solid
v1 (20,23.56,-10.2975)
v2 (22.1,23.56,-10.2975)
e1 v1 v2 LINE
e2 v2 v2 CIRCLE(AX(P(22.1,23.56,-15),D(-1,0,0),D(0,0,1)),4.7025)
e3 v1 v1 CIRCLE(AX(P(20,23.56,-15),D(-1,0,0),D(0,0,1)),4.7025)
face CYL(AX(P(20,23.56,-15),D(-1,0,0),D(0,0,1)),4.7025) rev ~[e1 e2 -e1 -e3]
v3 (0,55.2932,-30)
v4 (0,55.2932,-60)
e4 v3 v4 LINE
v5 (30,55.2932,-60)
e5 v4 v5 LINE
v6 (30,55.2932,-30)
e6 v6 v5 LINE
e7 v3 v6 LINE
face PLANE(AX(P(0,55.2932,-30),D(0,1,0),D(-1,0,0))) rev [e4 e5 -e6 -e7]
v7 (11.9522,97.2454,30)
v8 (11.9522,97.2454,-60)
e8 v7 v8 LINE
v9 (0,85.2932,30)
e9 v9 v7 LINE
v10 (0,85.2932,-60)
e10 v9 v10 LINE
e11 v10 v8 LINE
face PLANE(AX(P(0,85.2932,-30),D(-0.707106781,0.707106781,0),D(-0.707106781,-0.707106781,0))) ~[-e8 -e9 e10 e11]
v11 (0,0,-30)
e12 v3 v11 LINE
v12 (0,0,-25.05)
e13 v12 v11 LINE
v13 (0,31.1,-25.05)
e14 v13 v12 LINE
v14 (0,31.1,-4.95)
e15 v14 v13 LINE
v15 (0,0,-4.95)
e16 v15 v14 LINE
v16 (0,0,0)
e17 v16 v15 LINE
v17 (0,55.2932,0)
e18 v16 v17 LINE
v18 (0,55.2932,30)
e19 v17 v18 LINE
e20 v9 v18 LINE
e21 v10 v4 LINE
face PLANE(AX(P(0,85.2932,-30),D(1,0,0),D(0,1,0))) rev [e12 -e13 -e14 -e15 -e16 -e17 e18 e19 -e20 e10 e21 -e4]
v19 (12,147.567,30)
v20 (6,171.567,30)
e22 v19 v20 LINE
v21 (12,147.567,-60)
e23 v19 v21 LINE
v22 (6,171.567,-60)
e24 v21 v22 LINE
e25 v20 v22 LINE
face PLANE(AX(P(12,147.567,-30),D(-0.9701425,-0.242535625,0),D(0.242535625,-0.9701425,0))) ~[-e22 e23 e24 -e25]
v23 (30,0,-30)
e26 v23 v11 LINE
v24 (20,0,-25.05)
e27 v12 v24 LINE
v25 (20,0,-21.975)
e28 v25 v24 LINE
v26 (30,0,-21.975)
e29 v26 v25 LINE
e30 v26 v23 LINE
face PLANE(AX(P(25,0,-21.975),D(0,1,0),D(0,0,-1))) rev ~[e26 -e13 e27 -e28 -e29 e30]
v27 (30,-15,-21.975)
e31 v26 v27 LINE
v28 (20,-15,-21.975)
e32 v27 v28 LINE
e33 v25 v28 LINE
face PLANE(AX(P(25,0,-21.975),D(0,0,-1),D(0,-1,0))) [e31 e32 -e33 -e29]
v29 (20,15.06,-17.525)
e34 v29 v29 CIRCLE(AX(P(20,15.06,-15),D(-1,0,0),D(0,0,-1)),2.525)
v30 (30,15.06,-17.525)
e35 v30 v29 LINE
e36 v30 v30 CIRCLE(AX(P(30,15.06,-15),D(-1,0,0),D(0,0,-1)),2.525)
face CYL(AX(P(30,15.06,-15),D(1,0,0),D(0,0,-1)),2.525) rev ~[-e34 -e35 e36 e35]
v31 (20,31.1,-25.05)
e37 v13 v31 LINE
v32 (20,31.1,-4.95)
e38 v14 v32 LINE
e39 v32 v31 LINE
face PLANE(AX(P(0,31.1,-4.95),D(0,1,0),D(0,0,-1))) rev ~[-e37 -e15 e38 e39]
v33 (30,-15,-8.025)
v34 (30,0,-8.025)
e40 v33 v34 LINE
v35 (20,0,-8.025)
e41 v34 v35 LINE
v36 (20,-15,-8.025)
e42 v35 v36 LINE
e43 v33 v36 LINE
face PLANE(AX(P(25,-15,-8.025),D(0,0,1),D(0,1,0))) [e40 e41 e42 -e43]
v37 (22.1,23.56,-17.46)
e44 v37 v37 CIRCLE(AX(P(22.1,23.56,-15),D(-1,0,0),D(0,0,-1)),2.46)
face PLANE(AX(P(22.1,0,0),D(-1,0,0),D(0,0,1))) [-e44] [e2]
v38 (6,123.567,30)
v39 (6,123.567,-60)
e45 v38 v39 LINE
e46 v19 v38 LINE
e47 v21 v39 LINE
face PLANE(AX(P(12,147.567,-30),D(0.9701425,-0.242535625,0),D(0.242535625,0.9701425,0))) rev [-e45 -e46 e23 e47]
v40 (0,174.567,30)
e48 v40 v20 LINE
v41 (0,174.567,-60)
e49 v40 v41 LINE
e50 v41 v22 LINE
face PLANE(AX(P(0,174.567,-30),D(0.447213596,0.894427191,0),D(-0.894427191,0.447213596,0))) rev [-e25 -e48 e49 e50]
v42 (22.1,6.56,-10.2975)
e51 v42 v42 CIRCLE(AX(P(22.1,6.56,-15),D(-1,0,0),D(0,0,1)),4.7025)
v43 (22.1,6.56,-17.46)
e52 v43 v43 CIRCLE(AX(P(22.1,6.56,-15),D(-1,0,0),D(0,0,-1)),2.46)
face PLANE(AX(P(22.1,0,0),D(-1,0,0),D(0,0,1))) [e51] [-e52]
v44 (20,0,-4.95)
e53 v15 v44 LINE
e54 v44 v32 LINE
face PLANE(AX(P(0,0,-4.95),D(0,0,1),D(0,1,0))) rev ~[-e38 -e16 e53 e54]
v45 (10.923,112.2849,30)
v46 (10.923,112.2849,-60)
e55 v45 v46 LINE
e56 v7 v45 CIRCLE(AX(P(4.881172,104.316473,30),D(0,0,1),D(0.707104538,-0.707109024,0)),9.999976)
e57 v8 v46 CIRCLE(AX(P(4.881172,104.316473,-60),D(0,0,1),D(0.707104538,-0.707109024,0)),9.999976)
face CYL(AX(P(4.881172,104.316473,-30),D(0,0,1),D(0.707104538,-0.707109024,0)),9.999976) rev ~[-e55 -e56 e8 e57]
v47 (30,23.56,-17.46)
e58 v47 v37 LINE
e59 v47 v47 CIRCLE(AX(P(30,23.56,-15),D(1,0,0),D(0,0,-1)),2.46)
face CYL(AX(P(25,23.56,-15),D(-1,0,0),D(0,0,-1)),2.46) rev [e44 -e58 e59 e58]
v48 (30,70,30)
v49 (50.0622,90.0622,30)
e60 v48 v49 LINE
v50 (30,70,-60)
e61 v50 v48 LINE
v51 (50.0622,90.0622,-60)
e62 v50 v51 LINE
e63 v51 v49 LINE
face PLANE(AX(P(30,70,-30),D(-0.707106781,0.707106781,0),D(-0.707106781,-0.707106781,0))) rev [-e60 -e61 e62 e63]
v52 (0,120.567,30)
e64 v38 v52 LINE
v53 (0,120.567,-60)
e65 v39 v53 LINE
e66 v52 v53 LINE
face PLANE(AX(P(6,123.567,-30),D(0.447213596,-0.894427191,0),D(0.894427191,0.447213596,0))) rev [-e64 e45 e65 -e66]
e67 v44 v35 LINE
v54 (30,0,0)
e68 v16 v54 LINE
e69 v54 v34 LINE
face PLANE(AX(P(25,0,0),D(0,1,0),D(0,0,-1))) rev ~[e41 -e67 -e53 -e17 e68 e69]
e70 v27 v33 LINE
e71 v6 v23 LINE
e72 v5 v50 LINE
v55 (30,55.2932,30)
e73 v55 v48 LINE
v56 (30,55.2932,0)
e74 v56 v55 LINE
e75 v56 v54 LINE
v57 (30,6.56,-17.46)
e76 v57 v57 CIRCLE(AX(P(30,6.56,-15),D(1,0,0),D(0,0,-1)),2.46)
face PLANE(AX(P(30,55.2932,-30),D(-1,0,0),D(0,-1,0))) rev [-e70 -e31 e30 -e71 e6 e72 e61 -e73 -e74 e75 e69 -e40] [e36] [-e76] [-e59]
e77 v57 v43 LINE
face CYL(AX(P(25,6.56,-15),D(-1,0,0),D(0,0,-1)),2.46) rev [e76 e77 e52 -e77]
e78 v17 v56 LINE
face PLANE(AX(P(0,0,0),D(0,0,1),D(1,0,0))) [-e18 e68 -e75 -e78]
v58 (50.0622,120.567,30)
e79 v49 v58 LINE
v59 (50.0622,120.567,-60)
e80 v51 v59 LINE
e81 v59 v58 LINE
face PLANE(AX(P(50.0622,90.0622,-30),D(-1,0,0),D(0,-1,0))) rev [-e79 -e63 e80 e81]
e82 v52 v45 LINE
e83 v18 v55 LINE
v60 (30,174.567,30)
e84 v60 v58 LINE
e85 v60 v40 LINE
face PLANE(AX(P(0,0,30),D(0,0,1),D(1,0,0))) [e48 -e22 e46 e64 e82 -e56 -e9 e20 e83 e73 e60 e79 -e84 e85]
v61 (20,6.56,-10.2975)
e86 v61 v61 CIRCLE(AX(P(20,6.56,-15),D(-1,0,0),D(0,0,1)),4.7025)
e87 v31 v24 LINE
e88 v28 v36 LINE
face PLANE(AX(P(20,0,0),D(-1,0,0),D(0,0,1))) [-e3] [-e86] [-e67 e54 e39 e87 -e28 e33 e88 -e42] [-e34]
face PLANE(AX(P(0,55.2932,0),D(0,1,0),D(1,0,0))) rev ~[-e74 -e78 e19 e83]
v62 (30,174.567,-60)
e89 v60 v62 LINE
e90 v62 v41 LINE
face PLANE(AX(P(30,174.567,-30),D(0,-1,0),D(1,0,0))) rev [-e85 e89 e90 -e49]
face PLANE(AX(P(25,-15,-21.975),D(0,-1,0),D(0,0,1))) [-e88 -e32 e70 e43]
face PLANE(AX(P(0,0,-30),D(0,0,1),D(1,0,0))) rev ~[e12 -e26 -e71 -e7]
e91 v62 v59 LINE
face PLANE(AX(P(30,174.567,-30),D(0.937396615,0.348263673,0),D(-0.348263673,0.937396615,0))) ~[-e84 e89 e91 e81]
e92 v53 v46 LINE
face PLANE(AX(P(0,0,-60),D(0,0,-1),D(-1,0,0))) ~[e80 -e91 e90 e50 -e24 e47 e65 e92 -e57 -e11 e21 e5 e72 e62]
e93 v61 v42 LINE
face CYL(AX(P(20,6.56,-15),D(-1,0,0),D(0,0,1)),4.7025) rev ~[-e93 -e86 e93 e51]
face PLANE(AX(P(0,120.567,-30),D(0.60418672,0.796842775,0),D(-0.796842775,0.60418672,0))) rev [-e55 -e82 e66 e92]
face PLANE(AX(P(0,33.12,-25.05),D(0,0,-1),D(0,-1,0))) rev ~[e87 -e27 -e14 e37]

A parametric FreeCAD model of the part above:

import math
import FreeCAD as App
import Part
import Sketcher

V = App.Vector
Q = App.Units.Quantity


def add_polygon(sketch, points):
    """Adds a closed chain of lines whose ends are joined by coincident constraints."""
    first, n = sketch.GeometryCount, len(points)
    for a, b in zip(points, points[1:] + points[:1]):
        sketch.addGeometry(Part.LineSegment(App.Vector(*a, 0), App.Vector(*b, 0)), False)
    for i in range(n):
        sketch.addConstraint(Sketcher.Constraint("Coincident", first + i, 2, first + (i + 1) % n, 1))

doc = App.newDocument("Part")
params = doc.addObject("Spreadsheet::Sheet", "Params")
for row, (alias, value) in enumerate([
    ("sketch1_width", "25 mm"),
    ("sketch1_height", "40 mm"),
    ("pad1_length", "30 mm"),
    ("sketch2_diameter", "4.92 mm"),
    ("pocket1_length", "30 mm"),
    ("sketch3_height", "20.1 mm"),
    ("sketch3_width", "33.12 mm"),
    ("pocket2_length", "20 mm"),
    ("sketch4_height", "13.95 mm"),
    ("sketch4_width", "5 mm"),
    ("pad2_length", "15 mm"),
    ("sketch5_diameter", "4.92 mm"),
    ("pocket3_length", "2.1 mm"),
    ("sketch6_diameter", "4.92 mm"),
    ("pocket4_length", "10 mm"),
    ("sketch7_diameter", "4.92 mm"),
    ("pocket5_length", "2.1 mm"),
    ("sketch8_diameter", "4.92 mm"),
    ("sketch8_width", "40 mm"),
    ("sketch8_width2", "15 mm"),
    ("sketch8_height", "30 mm"),
    ("sketch8_height2", "13.95 mm"),
    ("pad3_length", "5 mm"),
    ("sketch9_width", "30 mm"),
    ("pad4_length", "30 mm"),
    ("sketch10_diameter", "5.05 mm"),
    ("pocket6_length", "30 mm"),
    ("sketch11_width", "2.02 mm"),
    ("sketch11_height", "20.1 mm"),
    ("pad5_length", "20 mm"),
    ("sketch12_radius", "10 mm"),
    ("sketch12_width", "30 mm"),
    ("pad6_length", "30 mm"),
    ("sketch13_width", "30 mm"),
    ("sketch13_radius", "10 mm"),
    ("pad7_length", "30 mm"),
], start=1):
    params.set(f"A{row}", alias)
    params.set(f"B{row}", "=" + value)
    params.setAlias(f"B{row}", alias)

body = doc.addObject("PartDesign::Body", "Body")

sketch1 = body.newObject("Sketcher::SketchObject", "Sketch")
sketch1.AttachmentSupport = (doc.getObject("XY_Plane"), [""])
sketch1.MapMode = "FlatFace"
add_polygon(sketch1, [(0, 40), (0, 0), (25, 0), (25, 40)])
sketch1.addConstraint(Sketcher.Constraint("Vertical", 0))
sketch1.addConstraint(Sketcher.Constraint("Horizontal", 1))
sketch1.addConstraint(Sketcher.Constraint("Vertical", 2))
sketch1.addConstraint(Sketcher.Constraint("Horizontal", 3))
sketch1.addConstraint(Sketcher.Constraint("Coincident", 0, 2, -1, 1))
sketch1.addConstraint(Sketcher.Constraint("DistanceX", 1, 1, 1, 2, Q("25 mm")))
sketch1.addConstraint(Sketcher.Constraint("DistanceY", 0, 2, 0, 1, Q("40 mm")))
sketch1.setExpression("Constraints[9]", "Params.sketch1_width")
sketch1.setExpression("Constraints[10]", "Params.sketch1_height")
pad1 = body.newObject("PartDesign::Pad", "Pad")
pad1.Profile = sketch1
pad1.setExpression("Length", "Params.pad1_length")
pad1.Reversed = True

sketch2 = body.newObject("Sketcher::SketchObject", "Sketch001")
sketch2.AttachmentSupport = (doc.getObject("YZ_Plane"), [""])
sketch2.MapMode = "FlatFace"
sketch2.AttachmentOffset = App.Placement(V(0, 0, 25), App.Rotation())
sketch2.addGeometry(Part.Circle(V(6.6, -15, 0), V(0, 0, 1), 2.5), False)
sketch2.addConstraint(Sketcher.Constraint("Diameter", 0, Q("4.92 mm")))
sketch2.addConstraint(Sketcher.Constraint("DistanceY", 0, 3, -1, 1, Q("15 mm")))
sketch2.addConstraint(Sketcher.Constraint("DistanceX", -1, 1, 0, 3, Q("6.56 mm")))
sketch2.setExpression("Constraints[0]", "Params.sketch2_diameter")
pocket1 = body.newObject("PartDesign::Pocket", "Pocket")
pocket1.Profile = sketch2
pocket1.setExpression("Length", "Params.pocket1_length")

sketch3 = body.newObject("Sketcher::SketchObject", "Sketch002")
sketch3.AttachmentSupport = (doc.getObject("YZ_Plane"), [""])
sketch3.MapMode = "FlatFace"
add_polygon(sketch3, [(0, -25), (0, -5), (33, -5), (33, -25)])
sketch3.addConstraint(Sketcher.Constraint("Vertical", 0))
sketch3.addConstraint(Sketcher.Constraint("Horizontal", 1))
sketch3.addConstraint(Sketcher.Constraint("Vertical", 2))
sketch3.addConstraint(Sketcher.Constraint("Horizontal", 3))
sketch3.addConstraint(Sketcher.Constraint("PointOnObject", 0, 2, -2))
sketch3.addConstraint(Sketcher.Constraint("DistanceY", 0, 1, 0, 2, Q("20.1 mm")))
sketch3.addConstraint(Sketcher.Constraint("DistanceX", 1, 1, 1, 2, Q("33.12 mm")))
sketch3.addConstraint(Sketcher.Constraint("DistanceY", 0, 2, -1, 1, Q("4.95 mm")))
sketch3.setExpression("Constraints[9]", "Params.sketch3_height")
sketch3.setExpression("Constraints[10]", "Params.sketch3_width")
pocket2 = body.newObject("PartDesign::Pocket", "Pocket001")
pocket2.Profile = sketch3
pocket2.setExpression("Length", "Params.pocket2_length")
pocket2.Reversed = True

sketch4 = body.newObject("Sketcher::SketchObject", "Sketch003")
sketch4.AttachmentSupport = (doc.getObject("XZ_Plane"), [""])
sketch4.MapMode = "FlatFace"
add_polygon(sketch4, [(25, -8), (20, -8), (20, -22), (25, -22)])
sketch4.addConstraint(Sketcher.Constraint("Horizontal", 0))
sketch4.addConstraint(Sketcher.Constraint("Vertical", 1))
sketch4.addConstraint(Sketcher.Constraint("Horizontal", 2))
sketch4.addConstraint(Sketcher.Constraint("Vertical", 3))
sketch4.addConstraint(Sketcher.Constraint("DistanceY", 1, 2, 1, 1, Q("13.95 mm")))
sketch4.addConstraint(Sketcher.Constraint("DistanceX", 0, 2, 0, 1, Q("5 mm")))
sketch4.addConstraint(Sketcher.Constraint("DistanceX", -1, 1, 0, 2, Q("20 mm")))
sketch4.addConstraint(Sketcher.Constraint("DistanceY", 0, 2, -1, 1, Q("8.025 mm")))
sketch4.setExpression("Constraints[8]", "Params.sketch4_height")
sketch4.setExpression("Constraints[9]", "Params.sketch4_width")
pad2 = body.newObject("PartDesign::Pad", "Pad001")
pad2.Profile = sketch4
pad2.setExpression("Length", "Params.pad2_length")

sketch5 = body.newObject("Sketcher::SketchObject", "Sketch004")
sketch5.AttachmentSupport = (doc.getObject("YZ_Plane"), [""])
sketch5.MapMode = "FlatFace"
sketch5.AttachmentOffset = App.Placement(V(0, 0, 20), App.Rotation())
sketch5.addGeometry(Part.Circle(V(6.6, -15, 0), V(0, 0, 1), 4.7), False)
sketch5.addGeometry(Part.Circle(V(6.6, -15, 0), V(0, 0, 1), 2.5), False)
sketch5.addConstraint(Sketcher.Constraint("Coincident", 1, 3, 0, 3))
sketch5.addConstraint(Sketcher.Constraint("Diameter", 0, Q("9.405 mm")))
sketch5.addConstraint(Sketcher.Constraint("Diameter", 1, Q("4.92 mm")))
sketch5.addConstraint(Sketcher.Constraint("DistanceY", 0, 3, -1, 1, Q("15 mm")))
sketch5.addConstraint(Sketcher.Constraint("DistanceX", -1, 1, 0, 3, Q("6.56 mm")))
sketch5.setExpression("Constraints[2]", "Params.sketch5_diameter")
pocket3 = body.newObject("PartDesign::Pocket", "Pocket002")
pocket3.Profile = sketch5
pocket3.setExpression("Length", "Params.pocket3_length")
pocket3.Reversed = True

sketch6 = body.newObject("Sketcher::SketchObject", "Sketch005")
sketch6.AttachmentSupport = (doc.getObject("YZ_Plane"), [""])
sketch6.MapMode = "FlatFace"
sketch6.AttachmentOffset = App.Placement(V(0, 0, 25), App.Rotation())
sketch6.addGeometry(Part.Circle(V(23.6, -15, 0), V(0, 0, 1), 2.5), False)
sketch6.addConstraint(Sketcher.Constraint("Diameter", 0, Q("4.92 mm")))
sketch6.addConstraint(Sketcher.Constraint("DistanceY", 0, 3, -1, 1, Q("15 mm")))
sketch6.addConstraint(Sketcher.Constraint("DistanceX", -1, 1, 0, 3, Q("23.56 mm")))
sketch6.setExpression("Constraints[0]", "Params.sketch6_diameter")
pocket4 = body.newObject("PartDesign::Pocket", "Pocket003")
pocket4.Profile = sketch6
pocket4.setExpression("Length", "Params.pocket4_length")

sketch7 = body.newObject("Sketcher::SketchObject", "Sketch006")
sketch7.AttachmentSupport = (doc.getObject("YZ_Plane"), [""])
sketch7.MapMode = "FlatFace"
sketch7.AttachmentOffset = App.Placement(V(0, 0, 20), App.Rotation())
sketch7.addGeometry(Part.Circle(V(23.6, -15, 0), V(0, 0, 1), 4.7), False)
sketch7.addGeometry(Part.Circle(V(23.6, -15, 0), V(0, 0, 1), 2.5), False)
sketch7.addConstraint(Sketcher.Constraint("Coincident", 1, 3, 0, 3))
sketch7.addConstraint(Sketcher.Constraint("Diameter", 0, Q("9.405 mm")))
sketch7.addConstraint(Sketcher.Constraint("Diameter", 1, Q("4.92 mm")))
sketch7.addConstraint(Sketcher.Constraint("DistanceY", 0, 3, -1, 1, Q("15 mm")))
sketch7.addConstraint(Sketcher.Constraint("DistanceX", -1, 1, 0, 3, Q("23.56 mm")))
sketch7.setExpression("Constraints[2]", "Params.sketch7_diameter")
pocket5 = body.newObject("PartDesign::Pocket", "Pocket004")
pocket5.Profile = sketch7
pocket5.setExpression("Length", "Params.pocket5_length")
pocket5.Reversed = True

sketch8 = body.newObject("Sketcher::SketchObject", "Sketch007")
sketch8.AttachmentSupport = (doc.getObject("YZ_Plane"), [""])
sketch8.MapMode = "FlatFace"
sketch8.AttachmentOffset = App.Placement(V(0, 0, 25), App.Rotation())
add_polygon(sketch8, [(0, -30), (40, -30), (40, 0), (0, 0), (0, -8), (-15, -8), (-15, -22), (0, -22)])
sketch8.addGeometry(Part.Circle(V(6.6, -15, 0), V(0, 0, 1), 2.5), False)
sketch8.addGeometry(Part.Circle(V(23.6, -15, 0), V(0, 0, 1), 2.5), False)
sketch8.addConstraint(Sketcher.Constraint("Horizontal", 0))
sketch8.addConstraint(Sketcher.Constraint("Vertical", 1))
sketch8.addConstraint(Sketcher.Constraint("Horizontal", 2))
sketch8.addConstraint(Sketcher.Constraint("Vertical", 3))
sketch8.addConstraint(Sketcher.Constraint("Horizontal", 4))
sketch8.addConstraint(Sketcher.Constraint("Vertical", 5))
sketch8.addConstraint(Sketcher.Constraint("Horizontal", 6))
sketch8.addConstraint(Sketcher.Constraint("Vertical", 7))
sketch8.addConstraint(Sketcher.Constraint("Coincident", 2, 2, -1, 1))
sketch8.addConstraint(Sketcher.Constraint("Equal", 8, 9))
sketch8.addConstraint(Sketcher.Constraint("PointOnObject", 6, 2, -2))
sketch8.addConstraint(Sketcher.Constraint("Horizontal", 8, 3, 9, 3))
sketch8.addConstraint(Sketcher.Constraint("Equal", 3, 7))
sketch8.addConstraint(Sketcher.Constraint("Diameter", 8, Q("4.92 mm")))
sketch8.addConstraint(Sketcher.Constraint("DistanceX", 0, 1, 0, 2, Q("40 mm")))
sketch8.addConstraint(Sketcher.Constraint("DistanceX", 4, 2, 4, 1, Q("15 mm")))
sketch8.addConstraint(Sketcher.Constraint("DistanceY", 1, 1, 1, 2, Q("30 mm")))
sketch8.addConstraint(Sketcher.Constraint("DistanceY", 8, 3, -1, 1, Q("15 mm")))
sketch8.addConstraint(Sketcher.Constraint("DistanceX", 8, 3, 9, 3, Q("17 mm")))
sketch8.addConstraint(Sketcher.Constraint("DistanceY", 5, 2, 5, 1, Q("13.95 mm")))
sketch8.addConstraint(Sketcher.Constraint("DistanceX", -1, 1, 8, 3, Q("6.56 mm")))
sketch8.setExpression("Constraints[21]", "Params.sketch8_diameter")
sketch8.setExpression("Constraints[22]", "Params.sketch8_width")
sketch8.setExpression("Constraints[23]", "Params.sketch8_width2")
sketch8.setExpression("Constraints[24]", "Params.sketch8_height")
sketch8.setExpression("Constraints[27]", "Params.sketch8_height2")
pad3 = body.newObject("PartDesign::Pad", "Pad002")
pad3.Profile = sketch8
pad3.setExpression("Length", "Params.pad3_length")

sketch9 = body.newObject("Sketcher::SketchObject", "Sketch008")
sketch9.AttachmentSupport = (doc.getObject("XZ_Plane"), [""])
sketch9.MapMode = "FlatFace"
sketch9.AttachmentOffset = App.Placement(V(0, 0, -40), App.Rotation())
add_polygon(sketch9, [(30, -30), (0, -30), (0, 0), (30, 0)])
sketch9.addConstraint(Sketcher.Constraint("Horizontal", 0))
sketch9.addConstraint(Sketcher.Constraint("Vertical", 1))
sketch9.addConstraint(Sketcher.Constraint("Horizontal", 2))
sketch9.addConstraint(Sketcher.Constraint("Vertical", 3))
sketch9.addConstraint(Sketcher.Constraint("Coincident", 1, 2, -1, 1))
sketch9.addConstraint(Sketcher.Constraint("Equal", 2, 1))
sketch9.addConstraint(Sketcher.Constraint("DistanceX", 0, 2, 0, 1, Q("30 mm")))
sketch9.setExpression("Constraints[10]", "Params.sketch9_width")
pad4 = body.newObject("PartDesign::Pad", "Pad003")
pad4.Profile = sketch9
pad4.setExpression("Length", "Params.pad4_length")
pad4.Reversed = True

sketch10 = body.newObject("Sketcher::SketchObject", "Sketch009")
sketch10.AttachmentSupport = (doc.getObject("YZ_Plane"), [""])
sketch10.MapMode = "FlatFace"
sketch10.AttachmentOffset = App.Placement(V(0, 0, 30), App.Rotation())
sketch10.addGeometry(Part.Circle(V(15.1, -15, 0), V(0, 0, 1), 2.5), False)
sketch10.addConstraint(Sketcher.Constraint("Diameter", 0, Q("5.05 mm")))
sketch10.addConstraint(Sketcher.Constraint("DistanceY", 0, 3, -1, 1, Q("15 mm")))
sketch10.addConstraint(Sketcher.Constraint("DistanceX", -1, 1, 0, 3, Q("15.06 mm")))
sketch10.setExpression("Constraints[0]", "Params.sketch10_diameter")
pocket6 = body.newObject("PartDesign::Pocket", "Pocket005")
pocket6.Profile = sketch10
pocket6.setExpression("Length", "Params.pocket6_length")

sketch11 = body.newObject("Sketcher::SketchObject", "Sketch010")
sketch11.AttachmentSupport = (doc.getObject("YZ_Plane"), [""])
sketch11.MapMode = "FlatFace"
add_polygon(sketch11, [(33.1, -5), (33.1, -25.1), (31.1, -25.1), (31.1, -5)])
sketch11.addConstraint(Sketcher.Constraint("Vertical", 0))
sketch11.addConstraint(Sketcher.Constraint("Horizontal", 1))
sketch11.addConstraint(Sketcher.Constraint("Vertical", 2))
sketch11.addConstraint(Sketcher.Constraint("Horizontal", 3))
sketch11.addConstraint(Sketcher.Constraint("DistanceX", 1, 2, 1, 1, Q("2.02 mm")))
sketch11.addConstraint(Sketcher.Constraint("DistanceY", 0, 2, 0, 1, Q("20.1 mm")))
sketch11.addConstraint(Sketcher.Constraint("DistanceX", -1, 1, 1, 2, Q("31.1 mm")))
sketch11.addConstraint(Sketcher.Constraint("DistanceY", 0, 2, -1, 1, Q("25.05 mm")))
sketch11.setExpression("Constraints[8]", "Params.sketch11_width")
sketch11.setExpression("Constraints[9]", "Params.sketch11_height")
pad5 = body.newObject("PartDesign::Pad", "Pad004")
pad5.Profile = sketch11
pad5.setExpression("Length", "Params.pad5_length")

sketch12 = body.newObject("Sketcher::SketchObject", "Sketch011")
sketch12.AttachmentSupport = (doc.getObject("XY_Plane"), [""])
sketch12.MapMode = "FlatFace"
sketch12.addGeometry(Part.LineSegment(V(0, 85, 0), V(0, 70, 0)), False)
sketch12.addGeometry(Part.LineSegment(V(0, 70, 0), V(30, 70, 0)), False)
sketch12.addGeometry(Part.LineSegment(V(30, 70, 0), V(50, 90, 0)), False)
sketch12.addGeometry(Part.LineSegment(V(50, 90, 0), V(50, 121, 0)), False)
sketch12.addGeometry(Part.LineSegment(V(50, 121, 0), V(30, 175, 0)), False)
sketch12.addGeometry(Part.LineSegment(V(30, 175, 0), V(0, 175, 0)), False)
sketch12.addGeometry(Part.LineSegment(V(0, 175, 0), V(6, 172, 0)), False)
sketch12.addGeometry(Part.LineSegment(V(6, 172, 0), V(12, 148, 0)), False)
sketch12.addGeometry(Part.LineSegment(V(12, 148, 0), V(6, 124, 0)), False)
sketch12.addGeometry(Part.LineSegment(V(6, 124, 0), V(0, 121, 0)), False)
sketch12.addGeometry(Part.LineSegment(V(0, 121, 0), V(11, 112, 0)), False)
sketch12.addGeometry(Part.ArcOfCircle(Part.Circle(V(5, 104, 0), V(0, 0, 1), 10), math.radians(-45), math.radians(53)), False)
sketch12.addGeometry(Part.LineSegment(V(12, 97, 0), V(0, 85, 0)), False)
sketch12.addConstraint(Sketcher.Constraint("Coincident", 0, 2, 1, 1))
sketch12.addConstraint(Sketcher.Constraint("Coincident", 1, 2, 2, 1))
sketch12.addConstraint(Sketcher.Constraint("Coincident", 2, 2, 3, 1))
sketch12.addConstraint(Sketcher.Constraint("Coincident", 3, 2, 4, 1))
sketch12.addConstraint(Sketcher.Constraint("Coincident", 4, 2, 5, 1))
sketch12.addConstraint(Sketcher.Constraint("Coincident", 5, 2, 6, 1))
sketch12.addConstraint(Sketcher.Constraint("Coincident", 6, 2, 7, 1))
sketch12.addConstraint(Sketcher.Constraint("Coincident", 7, 2, 8, 1))
sketch12.addConstraint(Sketcher.Constraint("Coincident", 8, 2, 9, 1))
sketch12.addConstraint(Sketcher.Constraint("Coincident", 9, 2, 10, 1))
sketch12.addConstraint(Sketcher.Constraint("Tangent", 10, 2, 11, 2))
sketch12.addConstraint(Sketcher.Constraint("Tangent", 11, 1, 12, 1))
sketch12.addConstraint(Sketcher.Constraint("Coincident", 12, 2, 0, 1))
sketch12.addConstraint(Sketcher.Constraint("Vertical", 0))
sketch12.addConstraint(Sketcher.Constraint("Horizontal", 1))
sketch12.addConstraint(Sketcher.Constraint("Vertical", 3))
sketch12.addConstraint(Sketcher.Constraint("Horizontal", 5))
sketch12.addConstraint(Sketcher.Constraint("PointOnObject", 0, 2, -2))
sketch12.addConstraint(Sketcher.Constraint("PointOnObject", 5, 2, -2))
sketch12.addConstraint(Sketcher.Constraint("PointOnObject", 9, 2, -2))
sketch12.addConstraint(Sketcher.Constraint("Parallel", 2, 12))
sketch12.addConstraint(Sketcher.Constraint("Horizontal", 3, 2, 9, 2))
sketch12.addConstraint(Sketcher.Constraint("Vertical", 1, 2, 4, 2))
sketch12.addConstraint(Sketcher.Constraint("Vertical", 6, 2, 8, 2))
sketch12.addConstraint(Sketcher.Constraint("Equal", 7, 8))
sketch12.addConstraint(Sketcher.Constraint("Equal", 6, 9))
sketch12.addConstraint(Sketcher.Constraint("Radius", 11, Q("10 mm")))
sketch12.addConstraint(Sketcher.Constraint("Angle", 2, Q("45 deg")))
sketch12.addConstraint(Sketcher.Constraint("DistanceX", 1, 1, 1, 2, Q("30 mm")))
sketch12.addConstraint(Sketcher.Constraint("DistanceY", -1, 1, 0, 2, Q("70 mm")))
sketch12.addConstraint(Sketcher.Constraint("DistanceX", -1, 1, 6, 2, Q("6 mm")))
sketch12.addConstraint(Sketcher.Constraint("DistanceX", -1, 1, 7, 2, Q("12 mm")))
sketch12.addConstraint(Sketcher.Constraint("DistanceY", 3, 2, 4, 2, Q("54 mm")))
sketch12.addConstraint(Sketcher.Constraint("DistanceY", 6, 2, 5, 2, Q("3 mm")))
sketch12.addConstraint(Sketcher.Constraint("Angle", 4, Q("110.3812 deg")))
sketch12.addConstraint(Sketcher.Constraint("Angle", 10, Q("-37.1703 deg")))
sketch12.addConstraint(Sketcher.Constraint("Distance", 12, Q("16.903 mm")))
sketch12.addConstraint(Sketcher.Constraint("DistanceY", 0, 2, 0, 1, Q("15.2932 mm")))
sketch12.setExpression("Constraints[26]", "Params.sketch12_radius")
sketch12.setExpression("Constraints[28]", "Params.sketch12_width")
pad6 = body.newObject("PartDesign::Pad", "Pad005")
pad6.Profile = sketch12
pad6.setExpression("Length", "Params.pad6_length")
pad6.Reversed = True

sketch13 = body.newObject("Sketcher::SketchObject", "Sketch012")
sketch13.AttachmentSupport = (doc.getObject("XY_Plane"), [""])
sketch13.MapMode = "FlatFace"
sketch13.addGeometry(Part.LineSegment(V(30, 55, 0), V(30, 70, 0)), False)
sketch13.addGeometry(Part.LineSegment(V(30, 70, 0), V(50, 90, 0)), False)
sketch13.addGeometry(Part.LineSegment(V(50, 90, 0), V(50, 121, 0)), False)
sketch13.addGeometry(Part.LineSegment(V(50, 121, 0), V(30, 175, 0)), False)
sketch13.addGeometry(Part.LineSegment(V(30, 175, 0), V(0, 175, 0)), False)
sketch13.addGeometry(Part.LineSegment(V(0, 175, 0), V(6, 172, 0)), False)
sketch13.addGeometry(Part.LineSegment(V(6, 172, 0), V(12, 148, 0)), False)
sketch13.addGeometry(Part.LineSegment(V(12, 148, 0), V(6, 124, 0)), False)
sketch13.addGeometry(Part.LineSegment(V(6, 124, 0), V(0, 121, 0)), False)
sketch13.addGeometry(Part.LineSegment(V(0, 121, 0), V(11, 112, 0)), False)
sketch13.addGeometry(Part.ArcOfCircle(Part.Circle(V(5, 104, 0), V(0, 0, 1), 10), math.radians(-45), math.radians(53)), False)
sketch13.addGeometry(Part.LineSegment(V(12, 97, 0), V(0, 85, 0)), False)
sketch13.addGeometry(Part.LineSegment(V(0, 85, 0), V(0, 55, 0)), False)
sketch13.addGeometry(Part.LineSegment(V(0, 55, 0), V(30, 55, 0)), False)
sketch13.addConstraint(Sketcher.Constraint("Coincident", 0, 2, 1, 1))
sketch13.addConstraint(Sketcher.Constraint("Coincident", 1, 2, 2, 1))
sketch13.addConstraint(Sketcher.Constraint("Coincident", 2, 2, 3, 1))
sketch13.addConstraint(Sketcher.Constraint("Coincident", 3, 2, 4, 1))
sketch13.addConstraint(Sketcher.Constraint("Coincident", 4, 2, 5, 1))
sketch13.addConstraint(Sketcher.Constraint("Coincident", 5, 2, 6, 1))
sketch13.addConstraint(Sketcher.Constraint("Coincident", 6, 2, 7, 1))
sketch13.addConstraint(Sketcher.Constraint("Coincident", 7, 2, 8, 1))
sketch13.addConstraint(Sketcher.Constraint("Coincident", 8, 2, 9, 1))
sketch13.addConstraint(Sketcher.Constraint("Tangent", 9, 2, 10, 2))
sketch13.addConstraint(Sketcher.Constraint("Tangent", 10, 1, 11, 1))
sketch13.addConstraint(Sketcher.Constraint("Coincident", 11, 2, 12, 1))
sketch13.addConstraint(Sketcher.Constraint("Coincident", 12, 2, 13, 1))
sketch13.addConstraint(Sketcher.Constraint("Coincident", 13, 2, 0, 1))
sketch13.addConstraint(Sketcher.Constraint("Vertical", 0))
sketch13.addConstraint(Sketcher.Constraint("Vertical", 2))
sketch13.addConstraint(Sketcher.Constraint("Horizontal", 4))
sketch13.addConstraint(Sketcher.Constraint("Vertical", 12))
sketch13.addConstraint(Sketcher.Constraint("Horizontal", 13))
sketch13.addConstraint(Sketcher.Constraint("PointOnObject", 4, 2, -2))
sketch13.addConstraint(Sketcher.Constraint("PointOnObject", 8, 2, -2))
sketch13.addConstraint(Sketcher.Constraint("PointOnObject", 11, 2, -2))
sketch13.addConstraint(Sketcher.Constraint("Parallel", 1, 11))
sketch13.addConstraint(Sketcher.Constraint("Horizontal", 2, 2, 8, 2))
sketch13.addConstraint(Sketcher.Constraint("Vertical", 0, 2, 3, 2))
sketch13.addConstraint(Sketcher.Constraint("Vertical", 5, 2, 7, 2))
sketch13.addConstraint(Sketcher.Constraint("Equal", 13, 12))
sketch13.addConstraint(Sketcher.Constraint("Equal", 6, 7))
sketch13.addConstraint(Sketcher.Constraint("Equal", 5, 8))
sketch13.addConstraint(Sketcher.Constraint("DistanceX", 4, 2, 4, 1, Q("30 mm")))
sketch13.addConstraint(Sketcher.Constraint("Radius", 10, Q("10 mm")))
sketch13.addConstraint(Sketcher.Constraint("Angle", 1, Q("45 deg")))
sketch13.addConstraint(Sketcher.Constraint("DistanceY", -1, 1, 0, 2, Q("70 mm")))
sketch13.addConstraint(Sketcher.Constraint("DistanceX", -1, 1, 5, 2, Q("6 mm")))
sketch13.addConstraint(Sketcher.Constraint("DistanceX", -1, 1, 6, 2, Q("12 mm")))
sketch13.addConstraint(Sketcher.Constraint("DistanceY", 2, 2, 3, 2, Q("54 mm")))
sketch13.addConstraint(Sketcher.Constraint("DistanceY", 5, 2, 4, 2, Q("3 mm")))
sketch13.addConstraint(Sketcher.Constraint("Angle", 3, Q("110.3812 deg")))
sketch13.addConstraint(Sketcher.Constraint("Angle", 9, Q("-37.1703 deg")))
sketch13.addConstraint(Sketcher.Constraint("Distance", 11, Q("16.903 mm")))
sketch13.addConstraint(Sketcher.Constraint("DistanceY", 0, 1, 0, 2, Q("14.7068 mm")))
sketch13.setExpression("Constraints[29]", "Params.sketch13_width")
sketch13.setExpression("Constraints[30]", "Params.sketch13_radius")
pad7 = body.newObject("PartDesign::Pad", "Pad006")
pad7.Profile = sketch13
pad7.setExpression("Length", "Params.pad7_length")
doc.recompute()

datumplane = body.newObject("PartDesign::Plane", "DatumPlane")
datumplane.AttachmentSupport = (doc.getObject("XY_Plane"), [""])
datumplane.MapMode = "FlatFace"
datumplane.AttachmentOffset = App.Placement(V(0, 0, -15), App.Rotation())
mirrored = body.newObject("PartDesign::Mirrored", "Mirrored")
mirrored.Originals = [pad7]
mirrored.MirrorPlane = (datumplane, [""])
body.Tip = mirrored

doc.recompute()
